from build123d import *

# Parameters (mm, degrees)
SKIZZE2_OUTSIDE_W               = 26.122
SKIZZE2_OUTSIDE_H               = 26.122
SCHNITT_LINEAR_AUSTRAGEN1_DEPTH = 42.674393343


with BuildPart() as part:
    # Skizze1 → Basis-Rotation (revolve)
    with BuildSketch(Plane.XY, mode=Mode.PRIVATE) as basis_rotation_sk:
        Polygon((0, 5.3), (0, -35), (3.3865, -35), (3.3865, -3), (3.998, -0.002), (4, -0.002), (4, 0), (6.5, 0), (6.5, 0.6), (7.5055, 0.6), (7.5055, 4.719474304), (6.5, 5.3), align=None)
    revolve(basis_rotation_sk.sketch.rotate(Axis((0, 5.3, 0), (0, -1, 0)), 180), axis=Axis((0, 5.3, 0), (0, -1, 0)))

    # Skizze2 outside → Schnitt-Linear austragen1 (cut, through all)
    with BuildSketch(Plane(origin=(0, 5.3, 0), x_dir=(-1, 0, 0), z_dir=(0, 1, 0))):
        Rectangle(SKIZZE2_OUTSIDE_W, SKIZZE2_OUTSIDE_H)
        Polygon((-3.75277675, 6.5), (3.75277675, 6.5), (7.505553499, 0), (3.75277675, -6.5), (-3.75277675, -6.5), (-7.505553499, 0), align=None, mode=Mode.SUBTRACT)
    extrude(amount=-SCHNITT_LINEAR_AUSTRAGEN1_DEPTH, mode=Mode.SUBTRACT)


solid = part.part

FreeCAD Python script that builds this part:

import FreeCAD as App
import Part
import Sketcher
Q = App.Units.Quantity


def add_polygon(sketch, points):
    """Adds a closed chain of lines whose ends are joined by coincident constraints."""
    first, n = sketch.GeometryCount, len(points)
    for a, b in zip(points, points[1:] + points[:1]):
        sketch.addGeometry(Part.LineSegment(App.Vector(*a, 0), App.Vector(*b, 0)), False)
    for i in range(n):
        sketch.addConstraint(Sketcher.Constraint("Coincident", first + i, 2, first + (i + 1) % n, 1))

doc = App.newDocument("Part")
body = doc.addObject("PartDesign::Body", "Body")

# Sketch on XY plane
sketch1 = body.newObject("Sketcher::SketchObject", "Sketch")
sketch1.AttachmentSupport = (doc.getObject("XY_Plane"), [""])
sketch1.MapMode = "FlatFace"
add_polygon(sketch1, [(0, 5.3), (0, -35), (3.3865, -35), (3.3865, -3), (3.998, -0.002), (4, -0.002), (4, 0), (6.5, 0), (6.5, 0.6), (7.5055, 0.6), (7.5055, 4.7195), (6.5, 5.3)])  # lines 0-11
sketch1.addConstraint([
    Sketcher.Constraint("Vertical", 0),
    Sketcher.Constraint("Horizontal", 1),
    Sketcher.Constraint("Vertical", 2),
    Sketcher.Constraint("Horizontal", 4),
    Sketcher.Constraint("Vertical", 5),
    Sketcher.Constraint("Horizontal", 6),
    Sketcher.Constraint("Vertical", 7),
    Sketcher.Constraint("Horizontal", 8),
    Sketcher.Constraint("Vertical", 9),
    Sketcher.Constraint("Horizontal", 11),
    Sketcher.Constraint("PointOnObject", 0, 2, -2),
    Sketcher.Constraint("PointOnObject", 5, 2, -1),
    Sketcher.Constraint("Vertical", 7, 2, 10, 2),
    Sketcher.Constraint("Equal", 4, 5),
    Sketcher.Constraint("DistanceY", 2, 1, 2, 2, 32.0),
    Sketcher.Constraint("Angle", 10, Q("150 deg")),
    Sketcher.Constraint("DistanceX", 6, 1, 6, 2, 2.5),
    Sketcher.Constraint("DistanceX", 11, 2, 11, 1, 6.5),
    Sketcher.Constraint("DistanceY", 0, 2, 0, 1, 40.3),
    Sketcher.Constraint("DistanceY", 7, 1, 7, 2, 0.6),
    Sketcher.Constraint("DistanceY", 0, 2, -1, 1, 35.0),
    Sketcher.Constraint("DistanceX", 4, 1, 4, 2, 0.002),
    Sketcher.Constraint("DistanceX", 1, 1, 1, 2, 3.3865),
    Sketcher.Constraint("DistanceX", 8, 1, 8, 2, 1.0055),
])
revolution = body.newObject("PartDesign::Revolution", "Revolution")
revolution.Profile = sketch1
revolution.ReferenceAxis = (sketch1, ["V_Axis"])
revolution.Angle = 360

# Sketch on XZ plane
sketch2 = body.newObject("Sketcher::SketchObject", "Sketch001")
sketch2.AttachmentSupport = (doc.getObject("XZ_Plane"), [""])
sketch2.MapMode = "FlatFace"
sketch2.AttachmentOffset = App.Placement(App.Vector(0, 0, -5.3), App.Rotation())
add_polygon(sketch2, [(13, 13), (13, -13), (-13, -13), (-13, 13)])  # lines 0-3
add_polygon(sketch2, [(8, 0), (4, 6), (-4, 6), (-8, 0), (-4, -6), (4, -6)])  # lines 4-9
sketch2.addConstraint([
    Sketcher.Constraint("Vertical", 0),
    Sketcher.Constraint("Horizontal", 1),
    Sketcher.Constraint("Vertical", 2),
    Sketcher.Constraint("Horizontal", 3),
    Sketcher.Constraint("Horizontal", 5),
    Sketcher.Constraint("Horizontal", 8),
    Sketcher.Constraint("Symmetric", 0, 2, 2, 2, -1, 1),
    Sketcher.Constraint("Symmetric", 4, 2, 7, 2, -1, 1),
    Sketcher.Constraint("Symmetric", 6, 2, 9, 2, -1, 1),
    Sketcher.Constraint("PointOnObject", 6, 2, -1),
    Sketcher.Constraint("Parallel", 6, 9),
    Sketcher.Constraint("Vertical", 5, 2, 7, 2),
    Sketcher.Constraint("Equal", 3, 0),
    Sketcher.Constraint("Angle", 4, Q("120 deg")),
    Sketcher.Constraint("DistanceY", 7, 2, 5, 2, 13.0),
    Sketcher.Constraint("DistanceX", 1, 2, 1, 1, 26.122),
    Sketcher.Constraint("DistanceX", 5, 2, 5, 1, 7.505554),
])
pocket1 = body.newObject("PartDesign::Pocket", "Pocket")
pocket1.Profile = sketch2
pocket1.Type = "ThroughAll"
pocket1.Reversed = True

doc.recompute()
